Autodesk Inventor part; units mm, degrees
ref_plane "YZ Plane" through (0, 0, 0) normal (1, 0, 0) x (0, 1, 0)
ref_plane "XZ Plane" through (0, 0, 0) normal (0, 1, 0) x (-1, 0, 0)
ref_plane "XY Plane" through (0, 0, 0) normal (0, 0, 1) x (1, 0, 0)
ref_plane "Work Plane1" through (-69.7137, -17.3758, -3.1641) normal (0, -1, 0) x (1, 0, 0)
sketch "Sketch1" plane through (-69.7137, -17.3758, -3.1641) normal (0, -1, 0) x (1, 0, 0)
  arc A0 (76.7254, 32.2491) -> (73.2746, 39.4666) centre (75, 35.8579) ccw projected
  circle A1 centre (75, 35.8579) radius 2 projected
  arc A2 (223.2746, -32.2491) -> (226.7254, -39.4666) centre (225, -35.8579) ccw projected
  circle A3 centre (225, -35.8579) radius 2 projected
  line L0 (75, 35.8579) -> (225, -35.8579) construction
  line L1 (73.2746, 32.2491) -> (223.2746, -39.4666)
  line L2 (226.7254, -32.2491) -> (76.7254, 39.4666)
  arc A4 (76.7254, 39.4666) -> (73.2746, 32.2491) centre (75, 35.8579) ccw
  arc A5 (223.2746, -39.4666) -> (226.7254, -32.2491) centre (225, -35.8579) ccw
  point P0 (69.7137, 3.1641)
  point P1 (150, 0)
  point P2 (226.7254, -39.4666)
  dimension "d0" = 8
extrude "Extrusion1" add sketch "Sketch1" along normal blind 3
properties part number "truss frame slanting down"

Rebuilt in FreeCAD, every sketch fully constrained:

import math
import FreeCAD as App
import Part
import Sketcher

doc = App.newDocument("Part")
body = doc.addObject("PartDesign::Body", "Body")

# Sketch on XZ plane
sketch1 = body.newObject("Sketcher::SketchObject", "Sketch")
sketch1.AttachmentSupport = (doc.getObject("XZ_Plane"), [""])
sketch1.MapMode = "FlatFace"
sketch1.AttachmentOffset = App.Placement(App.Vector(0, 0, 17.3758), App.Rotation())
sketch1.addGeometry(Part.LineSegment(App.Vector(157, -35.4, 0), App.Vector(7, 36.3, 0)), False)
sketch1.addGeometry(Part.ArcOfCircle(Part.Circle(App.Vector(5.3, 32.7, 0), App.Vector(0, 0, 1), 4), math.radians(64), math.radians(116)), False)
sketch1.addGeometry(Part.ArcOfCircle(Part.Circle(App.Vector(5.3, 32.7, 0), App.Vector(0, 0, 1), 4), math.radians(116), math.radians(244)), False)
sketch1.addGeometry(Part.LineSegment(App.Vector(3.6, 29.1, 0), App.Vector(153.6, -42.6, 0)), False)
sketch1.addGeometry(Part.ArcOfCircle(Part.Circle(App.Vector(155.3, -39, 0), App.Vector(0, 0, 1), 4), math.radians(-116), math.radians(-64)), False)
sketch1.addGeometry(Part.ArcOfCircle(Part.Circle(App.Vector(155.3, -39, 0), App.Vector(0, 0, 1), 4), math.radians(-64), math.radians(64)), False)
sketch1.addGeometry(Part.Circle(App.Vector(155.3, -39, 0), App.Vector(0, 0, 1), 2), False)
sketch1.addGeometry(Part.Circle(App.Vector(5.3, 32.7, 0), App.Vector(0, 0, 1), 2), False)
sketch1.addConstraint(Sketcher.Constraint("Tangent", 0, 2, 1, 1))
sketch1.addConstraint(Sketcher.Constraint("Tangent", 1, 2, 2, 1))
sketch1.addConstraint(Sketcher.Constraint("Tangent", 2, 2, 3, 1))
sketch1.addConstraint(Sketcher.Constraint("Tangent", 3, 2, 4, 1))
sketch1.addConstraint(Sketcher.Constraint("Tangent", 4, 2, 5, 1))
sketch1.addConstraint(Sketcher.Constraint("Tangent", 5, 2, 0, 1))
sketch1.addConstraint(Sketcher.Constraint("Coincident", 6, 3, 4, 3))
sketch1.addConstraint(Sketcher.Constraint("Coincident", 7, 3, 1, 3))
sketch1.addConstraint(Sketcher.Constraint("Equal", 1, 2))
sketch1.addConstraint(Sketcher.Constraint("Equal", 2, 4))
sketch1.addConstraint(Sketcher.Constraint("Equal", 4, 5))
sketch1.addConstraint(Sketcher.Constraint("Equal", 6, 7))
sketch1.addConstraint(Sketcher.Constraint("Horizontal", 0, 2, 1, 2))
sketch1.addConstraint(Sketcher.Constraint("Horizontal", 3, 2, 4, 2))
sketch1.addConstraint(Sketcher.Constraint("Radius", 1, 4.0))
sketch1.addConstraint(Sketcher.Constraint("Diameter", 6, 4.0))
sketch1.addConstraint(Sketcher.Constraint("DistanceX", 1, 3, 4, 3, 150.0))
sketch1.addConstraint(Sketcher.Constraint("DistanceY", 4, 3, -1, 1, 39.022))
sketch1.addConstraint(Sketcher.Constraint("DistanceX", -1, 1, 2, 2, 3.561))
sketch1.addConstraint(Sketcher.Constraint("DistanceY", -1, 1, 2, 2, 29.085))
pad1 = body.newObject("PartDesign::Pad", "Pad")
pad1.Profile = sketch1
pad1.Length = 3

doc.recompute()
